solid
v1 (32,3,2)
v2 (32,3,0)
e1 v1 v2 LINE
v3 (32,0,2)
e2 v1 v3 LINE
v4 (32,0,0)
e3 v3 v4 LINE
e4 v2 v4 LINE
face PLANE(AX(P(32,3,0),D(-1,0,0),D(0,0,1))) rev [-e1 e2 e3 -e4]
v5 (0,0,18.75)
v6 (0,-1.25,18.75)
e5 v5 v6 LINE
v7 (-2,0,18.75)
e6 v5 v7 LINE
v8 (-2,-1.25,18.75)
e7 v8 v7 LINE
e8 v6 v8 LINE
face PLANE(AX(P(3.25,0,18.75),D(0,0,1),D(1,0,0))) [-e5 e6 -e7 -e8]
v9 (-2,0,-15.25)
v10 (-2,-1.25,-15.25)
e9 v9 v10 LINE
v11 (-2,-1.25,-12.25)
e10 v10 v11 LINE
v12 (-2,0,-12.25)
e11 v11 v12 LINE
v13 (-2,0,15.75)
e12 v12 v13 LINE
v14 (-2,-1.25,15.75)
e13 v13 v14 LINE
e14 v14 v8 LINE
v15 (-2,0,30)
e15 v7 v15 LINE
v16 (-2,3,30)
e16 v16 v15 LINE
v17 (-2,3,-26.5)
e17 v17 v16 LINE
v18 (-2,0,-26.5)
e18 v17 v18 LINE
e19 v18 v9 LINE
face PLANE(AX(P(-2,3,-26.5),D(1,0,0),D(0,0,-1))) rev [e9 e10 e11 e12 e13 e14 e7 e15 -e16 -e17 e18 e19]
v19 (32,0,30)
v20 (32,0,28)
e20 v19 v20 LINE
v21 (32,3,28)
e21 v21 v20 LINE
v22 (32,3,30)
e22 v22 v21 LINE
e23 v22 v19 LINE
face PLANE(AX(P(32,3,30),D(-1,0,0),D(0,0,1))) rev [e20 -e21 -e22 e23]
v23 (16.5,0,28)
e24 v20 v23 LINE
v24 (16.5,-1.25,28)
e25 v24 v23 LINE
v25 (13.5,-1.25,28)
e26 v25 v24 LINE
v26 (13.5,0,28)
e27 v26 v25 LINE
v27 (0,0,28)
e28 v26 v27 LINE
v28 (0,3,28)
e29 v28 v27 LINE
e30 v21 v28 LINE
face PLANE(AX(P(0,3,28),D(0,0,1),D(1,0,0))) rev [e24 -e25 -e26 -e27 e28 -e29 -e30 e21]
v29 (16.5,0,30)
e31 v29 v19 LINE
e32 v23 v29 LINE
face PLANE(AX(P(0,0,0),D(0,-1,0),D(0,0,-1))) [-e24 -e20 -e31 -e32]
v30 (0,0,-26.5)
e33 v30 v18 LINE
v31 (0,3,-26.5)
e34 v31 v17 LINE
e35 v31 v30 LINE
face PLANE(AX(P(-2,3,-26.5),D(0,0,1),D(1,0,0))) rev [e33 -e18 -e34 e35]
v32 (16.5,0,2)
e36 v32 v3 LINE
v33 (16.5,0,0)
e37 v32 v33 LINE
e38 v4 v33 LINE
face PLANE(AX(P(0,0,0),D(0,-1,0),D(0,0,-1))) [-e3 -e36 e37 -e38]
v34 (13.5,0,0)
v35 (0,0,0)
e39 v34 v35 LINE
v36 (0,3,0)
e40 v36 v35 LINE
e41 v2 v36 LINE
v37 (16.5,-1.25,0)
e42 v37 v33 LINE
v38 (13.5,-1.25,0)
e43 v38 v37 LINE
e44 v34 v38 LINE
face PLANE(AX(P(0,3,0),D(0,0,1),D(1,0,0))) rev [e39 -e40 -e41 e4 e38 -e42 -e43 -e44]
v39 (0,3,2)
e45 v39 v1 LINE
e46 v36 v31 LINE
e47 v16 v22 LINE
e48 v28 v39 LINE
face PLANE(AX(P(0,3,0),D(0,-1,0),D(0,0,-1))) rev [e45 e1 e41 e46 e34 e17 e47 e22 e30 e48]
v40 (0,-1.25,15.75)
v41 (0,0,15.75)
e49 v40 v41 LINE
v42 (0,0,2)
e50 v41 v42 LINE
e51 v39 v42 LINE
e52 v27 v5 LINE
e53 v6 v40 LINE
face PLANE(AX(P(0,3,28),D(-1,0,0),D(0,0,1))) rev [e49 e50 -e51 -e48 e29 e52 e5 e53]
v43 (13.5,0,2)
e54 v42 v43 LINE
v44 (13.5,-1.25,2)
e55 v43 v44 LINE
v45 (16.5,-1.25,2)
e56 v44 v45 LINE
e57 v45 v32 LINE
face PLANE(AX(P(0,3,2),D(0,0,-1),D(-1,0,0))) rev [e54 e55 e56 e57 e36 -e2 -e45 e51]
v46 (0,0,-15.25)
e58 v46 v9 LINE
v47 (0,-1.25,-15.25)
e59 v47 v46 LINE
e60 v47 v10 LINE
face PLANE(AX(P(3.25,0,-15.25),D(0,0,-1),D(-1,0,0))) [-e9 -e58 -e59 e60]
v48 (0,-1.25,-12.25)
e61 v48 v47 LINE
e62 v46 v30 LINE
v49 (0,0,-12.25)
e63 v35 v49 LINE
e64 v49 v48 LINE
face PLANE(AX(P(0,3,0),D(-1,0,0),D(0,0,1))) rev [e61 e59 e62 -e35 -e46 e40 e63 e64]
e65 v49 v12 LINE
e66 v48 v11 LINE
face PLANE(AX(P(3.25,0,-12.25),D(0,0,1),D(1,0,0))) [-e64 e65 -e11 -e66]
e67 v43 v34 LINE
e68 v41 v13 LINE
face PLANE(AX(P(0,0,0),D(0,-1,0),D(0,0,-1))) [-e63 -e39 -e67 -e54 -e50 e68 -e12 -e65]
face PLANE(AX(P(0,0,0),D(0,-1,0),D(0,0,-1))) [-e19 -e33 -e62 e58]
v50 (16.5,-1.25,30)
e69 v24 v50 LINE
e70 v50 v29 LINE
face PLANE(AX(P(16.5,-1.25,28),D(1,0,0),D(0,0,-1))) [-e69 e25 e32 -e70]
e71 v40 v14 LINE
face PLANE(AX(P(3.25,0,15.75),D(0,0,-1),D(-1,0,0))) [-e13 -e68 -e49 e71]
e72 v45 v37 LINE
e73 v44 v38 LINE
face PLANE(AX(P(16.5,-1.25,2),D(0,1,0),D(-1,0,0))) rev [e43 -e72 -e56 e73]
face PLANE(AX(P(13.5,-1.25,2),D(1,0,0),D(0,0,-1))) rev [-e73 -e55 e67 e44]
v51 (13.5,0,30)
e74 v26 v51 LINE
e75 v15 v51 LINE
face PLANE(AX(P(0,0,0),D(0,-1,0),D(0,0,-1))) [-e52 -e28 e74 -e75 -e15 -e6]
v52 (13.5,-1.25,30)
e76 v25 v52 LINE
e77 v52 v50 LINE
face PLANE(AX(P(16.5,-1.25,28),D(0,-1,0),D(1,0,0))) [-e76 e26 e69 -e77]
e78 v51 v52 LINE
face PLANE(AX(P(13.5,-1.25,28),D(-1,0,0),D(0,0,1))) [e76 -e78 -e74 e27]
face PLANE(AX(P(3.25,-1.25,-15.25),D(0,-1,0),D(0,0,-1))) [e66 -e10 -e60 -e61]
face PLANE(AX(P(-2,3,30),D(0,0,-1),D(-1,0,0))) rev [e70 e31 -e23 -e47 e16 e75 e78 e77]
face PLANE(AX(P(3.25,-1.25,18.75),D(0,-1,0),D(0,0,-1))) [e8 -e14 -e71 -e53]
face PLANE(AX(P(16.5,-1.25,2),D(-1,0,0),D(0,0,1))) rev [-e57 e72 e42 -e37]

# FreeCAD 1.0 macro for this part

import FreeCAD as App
import Part
import Sketcher
from FreeCAD import Vector
Q = App.Units.Quantity


def add_polygon(sketch, points):
    """Adds a closed chain of lines whose ends are joined by coincident constraints."""
    first, n = sketch.GeometryCount, len(points)
    for a, b in zip(points, points[1:] + points[:1]):
        sketch.addGeometry(Part.LineSegment(App.Vector(*a, 0), App.Vector(*b, 0)), False)
    for i in range(n):
        sketch.addConstraint(Sketcher.Constraint("Coincident", first + i, 2, first + (i + 1) % n, 1))

doc = App.newDocument("Part")
params = doc.addObject("Spreadsheet::Sheet", "Params")
for row, (alias, value) in enumerate([
    ("sketch1_width", "32 mm"),
    ("sketch1_width2", "2 mm"),
    ("sketch1_height", "26 mm"),
    ("sketch1_height2", "26.5 mm"),
    ("pad1_length", "3 mm"),
    ("sketch2_height", "3 mm"),
    ("sketch2_width", "1.25 mm"),
    ("pad2_length", "2 mm"),
    ("sketch3_width", "3 mm"),
    ("sketch3_height", "1.25 mm"),
    ("pad3_length", "2 mm"),
], start=1):
    params.set(f"A{row}", alias)
    params.set(f"B{row}", "=" + value)
    params.setAlias(f"B{row}", alias)

body = doc.addObject("PartDesign::Body", "Body")

sketch1 = body.newObject("Sketcher::SketchObject", "Sketch")
sketch1.AttachmentSupport = (doc.getObject("XZ_Plane"), [""])
sketch1.MapMode = "FlatFace"
add_polygon(sketch1, [(0, 28), (0, 2), (32, 2), (32, 0), (0, 0), (0, -26.5), (-2, -26.5), (-2, 30), (32, 30), (32, 28)])
sketch1.addConstraint(Sketcher.Constraint("Vertical", 0))
sketch1.addConstraint(Sketcher.Constraint("Horizontal", 1))
sketch1.addConstraint(Sketcher.Constraint("Vertical", 2))
sketch1.addConstraint(Sketcher.Constraint("Horizontal", 3))
sketch1.addConstraint(Sketcher.Constraint("Vertical", 4))
sketch1.addConstraint(Sketcher.Constraint("Horizontal", 5))
sketch1.addConstraint(Sketcher.Constraint("Vertical", 6))
sketch1.addConstraint(Sketcher.Constraint("Horizontal", 7))
sketch1.addConstraint(Sketcher.Constraint("Vertical", 8))
sketch1.addConstraint(Sketcher.Constraint("Horizontal", 9))
sketch1.addConstraint(Sketcher.Constraint("Coincident", 3, 2, -1, 1))
sketch1.addConstraint(Sketcher.Constraint("PointOnObject", 0, 2, -2))
sketch1.addConstraint(Sketcher.Constraint("Vertical", 2, 2, 7, 2))
sketch1.addConstraint(Sketcher.Constraint("Equal", 5, 2))
sketch1.addConstraint(Sketcher.Constraint("Equal", 2, 8))
sketch1.addConstraint(Sketcher.Constraint("DistanceX", 1, 1, 1, 2, Q("32 mm")))
sketch1.addConstraint(Sketcher.Constraint("DistanceX", 5, 2, 5, 1, Q("2 mm")))
sketch1.addConstraint(Sketcher.Constraint("DistanceY", 0, 2, 0, 1, Q("26 mm")))
sketch1.addConstraint(Sketcher.Constraint("DistanceY", 4, 2, 4, 1, Q("26.5 mm")))
sketch1.setExpression("Constraints[25]", "Params.sketch1_width")
sketch1.setExpression("Constraints[26]", "Params.sketch1_width2")
sketch1.setExpression("Constraints[27]", "Params.sketch1_height")
sketch1.setExpression("Constraints[28]", "Params.sketch1_height2")
pad1 = body.newObject("PartDesign::Pad", "Pad")
pad1.Profile = sketch1
pad1.setExpression("Length", "Params.pad1_length")
pad1.Reversed = True

sketch2 = body.newObject("Sketcher::SketchObject", "Sketch001")
sketch2.AttachmentSupport = (doc.getObject("YZ_Plane"), [""])
sketch2.MapMode = "FlatFace"
sketch2.AttachmentOffset = App.Placement(Vector(0, 0, -2), App.Rotation())
add_polygon(sketch2, [(0, -15.2), (-1.2, -15.2), (-1.2, -12.2), (0, -12.2)])
add_polygon(sketch2, [(0, 15.8), (-1.2, 15.8), (-1.2, 18.8), (0, 18.8)])
sketch2.addConstraint(Sketcher.Constraint("Horizontal", 0))
sketch2.addConstraint(Sketcher.Constraint("Vertical", 1))
sketch2.addConstraint(Sketcher.Constraint("Horizontal", 2))
sketch2.addConstraint(Sketcher.Constraint("Vertical", 3))
sketch2.addConstraint(Sketcher.Constraint("Horizontal", 4))
sketch2.addConstraint(Sketcher.Constraint("Vertical", 5))
sketch2.addConstraint(Sketcher.Constraint("Horizontal", 6))
sketch2.addConstraint(Sketcher.Constraint("Vertical", 7))
sketch2.addConstraint(Sketcher.Constraint("PointOnObject", 2, 2, -2))
sketch2.addConstraint(Sketcher.Constraint("PointOnObject", 6, 2, -2))
sketch2.addConstraint(Sketcher.Constraint("Vertical", 1, 2, 4, 2))
sketch2.addConstraint(Sketcher.Constraint("Equal", 3, 5))
sketch2.addConstraint(Sketcher.Constraint("DistanceY", 1, 1, 1, 2, Q("3 mm")))
sketch2.addConstraint(Sketcher.Constraint("DistanceY", 1, 2, 4, 2, Q("28 mm")))
sketch2.addConstraint(Sketcher.Constraint("DistanceX", 0, 2, 0, 1, Q("1.25 mm")))
sketch2.addConstraint(Sketcher.Constraint("DistanceY", 0, 2, -1, 1, Q("15.25 mm")))
sketch2.setExpression("Constraints[20]", "Params.sketch2_height")
sketch2.setExpression("Constraints[22]", "Params.sketch2_width")
pad2 = body.newObject("PartDesign::Pad", "Pad001")
pad2.Profile = sketch2
pad2.setExpression("Length", "Params.pad2_length")

sketch3 = body.newObject("Sketcher::SketchObject", "Sketch002")
sketch3.AttachmentSupport = (doc.getObject("XY_Plane"), [""])
sketch3.MapMode = "FlatFace"
sketch3.AttachmentOffset = App.Placement(Vector(0, 0, 30), App.Rotation())
add_polygon(sketch3, [(13.5, 0), (13.5, -1.2), (16.5, -1.2), (16.5, 0)])
sketch3.addConstraint(Sketcher.Constraint("Vertical", 0))
sketch3.addConstraint(Sketcher.Constraint("Horizontal", 1))
sketch3.addConstraint(Sketcher.Constraint("Vertical", 2))
sketch3.addConstraint(Sketcher.Constraint("Horizontal", 3))
sketch3.addConstraint(Sketcher.Constraint("PointOnObject", 2, 2, -1))
sketch3.addConstraint(Sketcher.Constraint("DistanceX", 1, 1, 1, 2, Q("3 mm")))
sketch3.addConstraint(Sketcher.Constraint("DistanceY", 0, 2, 0, 1, Q("1.25 mm")))
sketch3.addConstraint(Sketcher.Constraint("DistanceX", -1, 1, 0, 2, Q("13.5 mm")))
sketch3.setExpression("Constraints[9]", "Params.sketch3_width")
sketch3.setExpression("Constraints[10]", "Params.sketch3_height")
pad3 = body.newObject("PartDesign::Pad", "Pad002")
pad3.Profile = sketch3
pad3.setExpression("Length", "Params.pad3_length")
pad3.Reversed = True
doc.recompute()

datumplane = body.newObject("PartDesign::Plane", "DatumPlane")
datumplane.AttachmentSupport = (doc.getObject("XY_Plane"), [""])
datumplane.MapMode = "FlatFace"
datumplane.AttachmentOffset = App.Placement(Vector(0, 0, 15), App.Rotation())
mirrored = body.newObject("PartDesign::Mirrored", "Mirrored")
mirrored.Originals = [pad3]
mirrored.MirrorPlane = (datumplane, [""])
body.Tip = mirrored

doc.recompute()
